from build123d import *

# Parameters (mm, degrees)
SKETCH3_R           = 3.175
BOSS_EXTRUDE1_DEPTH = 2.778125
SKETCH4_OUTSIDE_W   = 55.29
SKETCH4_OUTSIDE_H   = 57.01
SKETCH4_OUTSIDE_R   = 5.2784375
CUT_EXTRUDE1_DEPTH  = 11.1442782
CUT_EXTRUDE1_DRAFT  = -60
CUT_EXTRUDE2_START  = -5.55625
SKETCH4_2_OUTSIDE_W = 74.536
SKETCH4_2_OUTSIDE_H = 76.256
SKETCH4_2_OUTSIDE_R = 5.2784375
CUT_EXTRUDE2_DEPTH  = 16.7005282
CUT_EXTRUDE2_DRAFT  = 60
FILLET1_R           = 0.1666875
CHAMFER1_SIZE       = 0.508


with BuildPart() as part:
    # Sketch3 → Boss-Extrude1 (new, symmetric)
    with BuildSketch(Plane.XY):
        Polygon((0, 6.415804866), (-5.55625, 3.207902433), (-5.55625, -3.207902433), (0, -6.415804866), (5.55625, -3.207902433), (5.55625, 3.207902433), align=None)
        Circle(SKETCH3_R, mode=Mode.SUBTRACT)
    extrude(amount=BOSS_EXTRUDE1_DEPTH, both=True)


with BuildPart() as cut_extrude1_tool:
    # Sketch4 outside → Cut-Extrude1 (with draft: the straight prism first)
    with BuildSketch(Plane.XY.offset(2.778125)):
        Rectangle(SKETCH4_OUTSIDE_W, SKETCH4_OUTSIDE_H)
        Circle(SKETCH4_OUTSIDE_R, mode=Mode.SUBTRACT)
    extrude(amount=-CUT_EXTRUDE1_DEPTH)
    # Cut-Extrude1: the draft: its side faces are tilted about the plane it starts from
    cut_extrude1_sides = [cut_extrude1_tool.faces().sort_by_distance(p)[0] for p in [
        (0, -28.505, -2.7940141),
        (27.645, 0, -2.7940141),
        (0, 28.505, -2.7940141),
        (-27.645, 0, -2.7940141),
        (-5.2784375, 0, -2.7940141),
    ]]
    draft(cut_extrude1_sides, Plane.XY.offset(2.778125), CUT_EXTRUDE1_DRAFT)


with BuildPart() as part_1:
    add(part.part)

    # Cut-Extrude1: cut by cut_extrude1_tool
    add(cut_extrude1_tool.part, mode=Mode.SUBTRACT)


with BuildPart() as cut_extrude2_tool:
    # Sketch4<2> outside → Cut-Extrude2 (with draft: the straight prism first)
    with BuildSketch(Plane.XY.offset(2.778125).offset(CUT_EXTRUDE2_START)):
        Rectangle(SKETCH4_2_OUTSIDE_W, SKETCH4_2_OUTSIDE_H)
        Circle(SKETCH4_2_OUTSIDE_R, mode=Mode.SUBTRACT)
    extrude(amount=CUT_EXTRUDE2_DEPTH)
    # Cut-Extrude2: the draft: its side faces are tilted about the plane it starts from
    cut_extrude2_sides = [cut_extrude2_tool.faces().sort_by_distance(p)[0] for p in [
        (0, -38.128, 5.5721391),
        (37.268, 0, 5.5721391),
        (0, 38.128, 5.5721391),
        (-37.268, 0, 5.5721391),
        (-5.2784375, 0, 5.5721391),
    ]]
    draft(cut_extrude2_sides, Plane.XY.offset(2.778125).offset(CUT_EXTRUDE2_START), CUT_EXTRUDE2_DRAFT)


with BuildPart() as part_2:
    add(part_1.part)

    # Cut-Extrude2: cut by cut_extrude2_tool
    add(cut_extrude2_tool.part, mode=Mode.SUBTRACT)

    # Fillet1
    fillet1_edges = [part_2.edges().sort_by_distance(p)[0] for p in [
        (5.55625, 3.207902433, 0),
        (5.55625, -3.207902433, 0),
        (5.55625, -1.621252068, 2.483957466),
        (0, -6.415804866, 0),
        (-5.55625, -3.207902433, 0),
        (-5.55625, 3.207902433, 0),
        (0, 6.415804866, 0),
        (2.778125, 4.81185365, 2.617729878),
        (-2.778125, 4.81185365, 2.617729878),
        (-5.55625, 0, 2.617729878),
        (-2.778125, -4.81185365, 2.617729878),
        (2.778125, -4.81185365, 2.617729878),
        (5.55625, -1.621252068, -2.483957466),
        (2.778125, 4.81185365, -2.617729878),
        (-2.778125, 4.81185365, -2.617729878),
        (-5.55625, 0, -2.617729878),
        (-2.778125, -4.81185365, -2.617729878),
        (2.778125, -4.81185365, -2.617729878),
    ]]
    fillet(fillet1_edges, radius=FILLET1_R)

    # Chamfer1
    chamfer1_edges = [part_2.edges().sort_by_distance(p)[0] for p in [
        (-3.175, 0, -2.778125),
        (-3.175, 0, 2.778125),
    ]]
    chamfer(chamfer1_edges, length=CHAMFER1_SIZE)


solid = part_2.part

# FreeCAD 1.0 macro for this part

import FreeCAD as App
import Part
import Sketcher

V = App.Vector
Q = App.Units.Quantity


def edges_at(feature, points):
    """Names of the edges that pass closest to the given points."""
    edges = feature.Shape.Edges
    near = lambda p: min(range(len(edges)), key=lambda i: edges[i].distToShape(Part.Vertex(*p))[0])
    return sorted({f"Edge{near(p) + 1}" for p in points})


def faces_at(feature, points):
    """Names of the faces that lie closest to the given points."""
    faces = feature.Shape.Faces
    near = lambda p: min(range(len(faces)), key=lambda i: faces[i].distToShape(Part.Vertex(*p))[0])
    return sorted({f"Face{near(p) + 1}" for p in points})


def add_polygon(sketch, points):
    """Adds a closed chain of lines whose ends are joined by coincident constraints."""
    first, n = sketch.GeometryCount, len(points)
    for a, b in zip(points, points[1:] + points[:1]):
        sketch.addGeometry(Part.LineSegment(App.Vector(*a, 0), App.Vector(*b, 0)), False)
    for i in range(n):
        sketch.addConstraint(Sketcher.Constraint("Coincident", first + i, 2, first + (i + 1) % n, 1))

doc = App.newDocument("Part")
params = doc.addObject("Spreadsheet::Sheet", "Params")
for row, (alias, value) in enumerate([
    ("sketch1_diameter", "0.25 in"),
    ("pad1_length", "0.21875 in"),
    ("pad2_length", "11.144278 mm"),
    ("draft_angle", "60 deg"),
    ("pad3_length", "16.700528 mm"),
    ("draft2_angle", "60 deg"),
    ("fillet_radius", "0.166687 mm"),
    ("chamfer_size", "0.02 in"),
], start=1):
    params.set(f"A{row}", alias)
    params.set(f"B{row}", "=" + value)
    params.setAlias(f"B{row}", alias)

body = doc.addObject("PartDesign::Body", "Body")

# Sketch on XY plane
sketch1 = body.newObject("Sketcher::SketchObject", "Sketch")
sketch1.AttachmentSupport = (doc.getObject("XY_Plane"), [""])
sketch1.MapMode = "FlatFace"
add_polygon(sketch1, [(0, 6.4), (-5.6, 3.2), (-5.6, -3.2), (0, -6.4), (5.6, -3.2), (5.6, 3.2)])  # lines 0-5
sketch1.addGeometry(Part.Circle(V(0, 0, 0), V(0, 0, 1), 3.2), False)  # 6
sketch1.addConstraint([
    Sketcher.Constraint("Vertical", 1),
    Sketcher.Constraint("Vertical", 4),
    Sketcher.Constraint("Coincident", 6, 3, -1, 1),
    Sketcher.Constraint("Symmetric", 0, 2, 3, 2, -1, 1),
    Sketcher.Constraint("Symmetric", 2, 2, 5, 2, -1, 1),
    Sketcher.Constraint("PointOnObject", 2, 2, -2),
    Sketcher.Constraint("Parallel", 2, 5),
    Sketcher.Constraint("Horizontal", 1, 2, 3, 2),
    Sketcher.Constraint("Diameter", 6, Q("0.25 in")),
    Sketcher.Constraint("Angle", 0, Q("-150 deg")),
    Sketcher.Constraint("DistanceX", 0, 2, -1, 1, Q("0.21875 in")),
    Sketcher.Constraint("DistanceY", 1, 2, 1, 1, Q("6.415805 mm")),
])
sketch1.setExpression("Constraints[14]", "Params.sketch1_diameter")
pad1 = body.newObject("PartDesign::Pad", "Pad")
pad1.Profile = sketch1
pad1.setExpression("Length", "Params.pad1_length")
pad1.Midplane = True
body2 = doc.addObject("PartDesign::Body", "Body001")

# Sketch on XY plane
sketch2 = body2.newObject("Sketcher::SketchObject", "Sketch001")
sketch2.AttachmentSupport = (doc.getObject("XY_Plane001"), [""])
sketch2.MapMode = "FlatFace"
sketch2.AttachmentOffset = App.Placement(V(0, 0, 0.109375 * 25.4), App.Rotation())
add_polygon(sketch2, [(-28, 29), (-28, -29), (28, -29), (28, 29)])  # lines 0-3
sketch2.addGeometry(Part.Circle(V(0, 0, 0), V(0, 0, 1), 5), False)  # 4
sketch2.addConstraint([
    Sketcher.Constraint("Vertical", 0),
    Sketcher.Constraint("Horizontal", 1),
    Sketcher.Constraint("Vertical", 2),
    Sketcher.Constraint("Horizontal", 3),
    Sketcher.Constraint("Coincident", 4, 3, -1, 1),
    Sketcher.Constraint("Symmetric", 0, 2, 2, 2, -1, 1),
    Sketcher.Constraint("Diameter", 4, Q("10.556875 mm")),
    Sketcher.Constraint("DistanceX", 1, 1, 1, 2, Q("55.29 mm")),
    Sketcher.Constraint("DistanceY", 0, 2, 0, 1, Q("57.01 mm")),
])
pad2 = body2.newObject("PartDesign::Pad", "Pad001")
pad2.Profile = sketch2
pad2.setExpression("Length", "Params.pad2_length")
pad2.Reversed = True
doc.recompute()

datumplane = body2.newObject("PartDesign::Plane", "DatumPlane")
datumplane.AttachmentSupport = (doc.getObject("XY_Plane001"), [""])
datumplane.MapMode = "FlatFace"
datumplane.AttachmentOffset = App.Placement(V(0, 0, 0.109375 * 25.4), App.Rotation())
draft = body2.newObject("PartDesign::Draft", "Draft")
draft.Base = (pad2, faces_at(pad2, [
    (0, -28.505, -2.794),
    (27.645, 0, -2.794),
    (0, 28.505, -2.794),
    (-27.645, 0, -2.794),
    (-5.278, 0, -2.794),
]))
draft.NeutralPlane = (datumplane, [""])
draft.setExpression("Angle", "Params.draft_angle")
draft.Reversed = True
doc.recompute()

boolean = body.newObject("PartDesign::Boolean", "Boolean")
boolean.Type = "Cut"
boolean.addObjects([body2])
body3 = doc.addObject("PartDesign::Body", "Body002")

# Sketch on XY plane
sketch3 = body3.newObject("Sketcher::SketchObject", "Sketch002")
sketch3.AttachmentSupport = (doc.getObject("XY_Plane002"), [""])
sketch3.MapMode = "FlatFace"
sketch3.AttachmentOffset = App.Placement(V(0, 0, -0.109375 * 25.4), App.Rotation())
add_polygon(sketch3, [(-37, 38), (-37, -38), (37, -38), (37, 38)])  # lines 0-3
sketch3.addGeometry(Part.Circle(V(0, 0, 0), V(0, 0, 1), 5), False)  # 4
sketch3.addConstraint([
    Sketcher.Constraint("Vertical", 0),
    Sketcher.Constraint("Horizontal", 1),
    Sketcher.Constraint("Vertical", 2),
    Sketcher.Constraint("Horizontal", 3),
    Sketcher.Constraint("Coincident", 4, 3, -1, 1),
    Sketcher.Constraint("Symmetric", 0, 2, 2, 2, -1, 1),
    Sketcher.Constraint("Diameter", 4, Q("10.556875 mm")),
    Sketcher.Constraint("DistanceX", 1, 1, 1, 2, Q("74.536 mm")),
    Sketcher.Constraint("DistanceY", 0, 2, 0, 1, Q("76.256 mm")),
])
pad3 = body3.newObject("PartDesign::Pad", "Pad002")
pad3.Profile = sketch3
pad3.setExpression("Length", "Params.pad3_length")
doc.recompute()

datumplane2 = body3.newObject("PartDesign::Plane", "DatumPlane001")
datumplane2.AttachmentSupport = (doc.getObject("XY_Plane002"), [""])
datumplane2.MapMode = "FlatFace"
datumplane2.AttachmentOffset = App.Placement(V(0, 0, -0.109375 * 25.4), App.Rotation())
draft2 = body3.newObject("PartDesign::Draft", "Draft001")
draft2.Base = (pad3, faces_at(pad3, [
    (0, -38.128, 5.572),
    (37.268, 0, 5.572),
    (0, 38.128, 5.572),
    (-37.268, 0, 5.572),
    (-5.278, 0, 5.572),
]))
draft2.NeutralPlane = (datumplane2, [""])
draft2.setExpression("Angle", "Params.draft2_angle")
draft2.Reversed = False
doc.recompute()

boolean2 = body.newObject("PartDesign::Boolean", "Boolean001")
boolean2.Type = "Cut"
boolean2.addObjects([body3])
doc.recompute()

fillet = body.newObject("PartDesign::Fillet", "Fillet")
fillet.Base = (boolean2, edges_at(boolean2, [
    (5.556, 3.208, 0),
    (5.556, -3.208, 0),
    (5.556, -1.621, 2.484),
    (0, -6.416, 0),
    (-5.556, -3.208, 0),
    (-5.556, 3.208, 0),
    (0, 6.416, 0),
    (2.778, 4.812, 2.618),
    (-2.778, 4.812, 2.618),
    (-5.556, 0, 2.618),
    (-2.778, -4.812, 2.618),
    (2.778, -4.812, 2.618),
    (5.556, -1.621, -2.484),
    (2.778, 4.812, -2.618),
    (-2.778, 4.812, -2.618),
    (-5.556, 0, -2.618),
    (-2.778, -4.812, -2.618),
    (2.778, -4.812, -2.618),
]))
fillet.setExpression("Radius", "Params.fillet_radius")
doc.recompute()

chamfer = body.newObject("PartDesign::Chamfer", "Chamfer")
chamfer.Base = (fillet, edges_at(fillet, [(-3.175, 0, -2.778), (-3.175, 0, 2.778)]))
chamfer.setExpression("Size", "Params.chamfer_size")

doc.recompute()
